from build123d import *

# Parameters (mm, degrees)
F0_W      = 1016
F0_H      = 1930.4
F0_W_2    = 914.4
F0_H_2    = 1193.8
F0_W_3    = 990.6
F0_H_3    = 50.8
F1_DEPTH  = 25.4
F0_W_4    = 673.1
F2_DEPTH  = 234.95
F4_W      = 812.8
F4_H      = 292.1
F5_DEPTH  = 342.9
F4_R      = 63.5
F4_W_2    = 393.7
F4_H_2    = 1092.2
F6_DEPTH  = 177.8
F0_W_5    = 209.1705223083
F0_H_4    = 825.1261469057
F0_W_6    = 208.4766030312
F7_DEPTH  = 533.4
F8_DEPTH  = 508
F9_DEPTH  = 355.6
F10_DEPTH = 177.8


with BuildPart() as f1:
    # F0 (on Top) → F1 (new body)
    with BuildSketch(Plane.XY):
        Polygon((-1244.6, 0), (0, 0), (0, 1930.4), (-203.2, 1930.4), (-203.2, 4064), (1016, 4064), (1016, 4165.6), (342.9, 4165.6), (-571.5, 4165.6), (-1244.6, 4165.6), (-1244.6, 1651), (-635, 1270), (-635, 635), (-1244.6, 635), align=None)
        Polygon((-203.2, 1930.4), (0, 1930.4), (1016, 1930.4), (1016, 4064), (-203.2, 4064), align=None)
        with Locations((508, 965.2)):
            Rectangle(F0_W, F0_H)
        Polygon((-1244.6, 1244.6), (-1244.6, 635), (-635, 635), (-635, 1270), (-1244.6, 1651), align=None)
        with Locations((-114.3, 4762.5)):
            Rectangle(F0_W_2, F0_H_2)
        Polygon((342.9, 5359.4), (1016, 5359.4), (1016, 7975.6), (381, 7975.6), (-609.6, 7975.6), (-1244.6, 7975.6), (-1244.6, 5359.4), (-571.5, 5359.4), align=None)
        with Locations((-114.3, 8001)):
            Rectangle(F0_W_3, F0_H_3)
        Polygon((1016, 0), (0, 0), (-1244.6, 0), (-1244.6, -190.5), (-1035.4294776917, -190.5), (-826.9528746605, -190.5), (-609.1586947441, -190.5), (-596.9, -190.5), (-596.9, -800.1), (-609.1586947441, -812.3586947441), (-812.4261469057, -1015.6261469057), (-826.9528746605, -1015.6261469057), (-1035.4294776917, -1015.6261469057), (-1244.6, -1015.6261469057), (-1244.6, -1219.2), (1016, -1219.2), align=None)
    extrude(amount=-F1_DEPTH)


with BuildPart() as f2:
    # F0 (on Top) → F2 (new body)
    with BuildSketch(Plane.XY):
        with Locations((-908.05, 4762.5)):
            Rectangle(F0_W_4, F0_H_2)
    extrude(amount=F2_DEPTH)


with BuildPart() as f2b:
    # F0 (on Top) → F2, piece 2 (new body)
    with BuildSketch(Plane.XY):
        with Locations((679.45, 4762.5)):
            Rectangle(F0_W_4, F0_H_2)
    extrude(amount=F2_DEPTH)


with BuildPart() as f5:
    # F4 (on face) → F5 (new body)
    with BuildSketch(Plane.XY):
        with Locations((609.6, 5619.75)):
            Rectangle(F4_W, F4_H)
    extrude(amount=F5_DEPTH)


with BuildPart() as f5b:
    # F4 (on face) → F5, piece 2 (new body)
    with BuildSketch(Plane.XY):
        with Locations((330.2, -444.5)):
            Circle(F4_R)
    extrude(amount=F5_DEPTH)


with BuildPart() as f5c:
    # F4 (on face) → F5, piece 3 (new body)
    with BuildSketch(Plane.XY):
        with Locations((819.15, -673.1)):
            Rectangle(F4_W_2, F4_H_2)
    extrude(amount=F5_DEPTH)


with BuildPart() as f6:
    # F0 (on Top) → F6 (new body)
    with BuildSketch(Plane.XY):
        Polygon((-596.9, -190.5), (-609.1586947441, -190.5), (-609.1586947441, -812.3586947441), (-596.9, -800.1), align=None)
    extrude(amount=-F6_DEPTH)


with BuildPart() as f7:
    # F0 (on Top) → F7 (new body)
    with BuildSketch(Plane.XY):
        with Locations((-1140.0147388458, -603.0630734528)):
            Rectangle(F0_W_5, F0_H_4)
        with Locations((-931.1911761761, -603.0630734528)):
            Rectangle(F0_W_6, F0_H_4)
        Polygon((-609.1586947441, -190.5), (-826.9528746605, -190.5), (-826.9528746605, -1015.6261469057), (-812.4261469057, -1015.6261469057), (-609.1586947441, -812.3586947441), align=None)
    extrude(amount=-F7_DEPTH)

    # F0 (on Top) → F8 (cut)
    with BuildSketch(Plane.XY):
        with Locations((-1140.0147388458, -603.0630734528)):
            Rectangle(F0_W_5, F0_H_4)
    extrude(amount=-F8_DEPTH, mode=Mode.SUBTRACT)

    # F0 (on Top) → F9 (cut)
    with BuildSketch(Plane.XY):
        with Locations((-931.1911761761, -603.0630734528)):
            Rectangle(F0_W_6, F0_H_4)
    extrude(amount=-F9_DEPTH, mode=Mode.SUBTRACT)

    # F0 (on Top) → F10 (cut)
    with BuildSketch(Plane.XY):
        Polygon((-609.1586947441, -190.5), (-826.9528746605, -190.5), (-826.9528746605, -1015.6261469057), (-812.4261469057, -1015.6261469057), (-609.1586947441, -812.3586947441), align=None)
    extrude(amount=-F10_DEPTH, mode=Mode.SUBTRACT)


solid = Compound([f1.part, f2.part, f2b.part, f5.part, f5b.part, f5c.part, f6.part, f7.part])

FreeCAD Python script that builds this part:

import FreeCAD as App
import Part
import Sketcher

V = App.Vector
Q = App.Units.Quantity

doc = App.newDocument("Part")
body = doc.addObject("PartDesign::Body", "Body")

# Sketch on XY plane
sketch1 = body.newObject("Sketcher::SketchObject", "Sketch")
sketch1.AttachmentSupport = (doc.getObject("XY_Plane"), [""])
sketch1.MapMode = "FlatFace"
sketch1.addGeometry([
    Part.LineSegment(V(1016, 4166, 0), V(343, 4166, 0)),  # 0
    Part.LineSegment(V(343, 4166, 0), V(343, 5359, 0)),  # 1
    Part.LineSegment(V(343, 5359, 0), V(1016, 5359, 0)),  # 2
    Part.LineSegment(V(1016, 5359, 0), V(1016, 7976, 0)),  # 3
    Part.LineSegment(V(1016, 7976, 0), V(381, 7976, 0)),  # 4
    Part.LineSegment(V(381, 7976, 0), V(381, 8026, 0)),  # 5
    Part.LineSegment(V(381, 8026, 0), V(-610, 8026, 0)),  # 6
    Part.LineSegment(V(-610, 8026, 0), V(-610, 7976, 0)),  # 7
    Part.LineSegment(V(-610, 7976, 0), V(-1245, 7976, 0)),  # 8
    Part.LineSegment(V(-1245, 7976, 0), V(-1245, 5359, 0)),  # 9
    Part.LineSegment(V(-1245, 5359, 0), V(-572, 5359, 0)),  # 10
    Part.LineSegment(V(-572, 5359, 0), V(-572, 4166, 0)),  # 11
    Part.LineSegment(V(-572, 4166, 0), V(-1245, 4166, 0)),  # 12
    Part.LineSegment(V(-1245, 4166, 0), V(-1245, -190, 0)),  # 13
    Part.LineSegment(V(-1245, -190, 0), V(-597, -190, 0)),  # 14
    Part.LineSegment(V(-597, -190, 0), V(-597, -800, 0)),  # 15
    Part.LineSegment(V(-597, -800, 0), V(-812, -1016, 0)),  # 16
    Part.LineSegment(V(-812, -1016, 0), V(-1245, -1016, 0)),  # 17
    Part.LineSegment(V(-1245, -1016, 0), V(-1245, -1219, 0)),  # 18
    Part.LineSegment(V(-1245, -1219, 0), V(1016, -1219, 0)),  # 19
    Part.LineSegment(V(1016, -1219, 0), V(1016, 4166, 0)),  # 20
], False)
sketch1.addConstraint([
    Sketcher.Constraint("Coincident", 0, 2, 1, 1),
    Sketcher.Constraint("Coincident", 1, 2, 2, 1),
    Sketcher.Constraint("Coincident", 2, 2, 3, 1),
    Sketcher.Constraint("Coincident", 3, 2, 4, 1),
    Sketcher.Constraint("Coincident", 4, 2, 5, 1),
    Sketcher.Constraint("Coincident", 5, 2, 6, 1),
    Sketcher.Constraint("Coincident", 6, 2, 7, 1),
    Sketcher.Constraint("Coincident", 7, 2, 8, 1),
    Sketcher.Constraint("Coincident", 8, 2, 9, 1),
    Sketcher.Constraint("Coincident", 9, 2, 10, 1),
    Sketcher.Constraint("Coincident", 10, 2, 11, 1),
    Sketcher.Constraint("Coincident", 11, 2, 12, 1),
    Sketcher.Constraint("Coincident", 12, 2, 13, 1),
    Sketcher.Constraint("Coincident", 13, 2, 14, 1),
    Sketcher.Constraint("Coincident", 14, 2, 15, 1),
    Sketcher.Constraint("Coincident", 15, 2, 16, 1),
    Sketcher.Constraint("Coincident", 16, 2, 17, 1),
    Sketcher.Constraint("Coincident", 17, 2, 18, 1),
    Sketcher.Constraint("Coincident", 18, 2, 19, 1),
    Sketcher.Constraint("Coincident", 19, 2, 20, 1),
    Sketcher.Constraint("Coincident", 20, 2, 0, 1),
    Sketcher.Constraint("Horizontal", 0),
    Sketcher.Constraint("Vertical", 1),
    Sketcher.Constraint("Horizontal", 2),
    Sketcher.Constraint("Vertical", 3),
    Sketcher.Constraint("Horizontal", 4),
    Sketcher.Constraint("Vertical", 5),
    Sketcher.Constraint("Horizontal", 6),
    Sketcher.Constraint("Vertical", 7),
    Sketcher.Constraint("Horizontal", 8),
    Sketcher.Constraint("Vertical", 9),
    Sketcher.Constraint("Horizontal", 10),
    Sketcher.Constraint("Vertical", 11),
    Sketcher.Constraint("Horizontal", 12),
    Sketcher.Constraint("Vertical", 13),
    Sketcher.Constraint("Horizontal", 14),
    Sketcher.Constraint("Vertical", 15),
    Sketcher.Constraint("Horizontal", 17),
    Sketcher.Constraint("Vertical", 18),
    Sketcher.Constraint("Horizontal", 19),
    Sketcher.Constraint("Vertical", 20),
    Sketcher.Constraint("Horizontal", 4, 2, 7, 2),
    Sketcher.Constraint("Horizontal", 2, 2, 9, 2),
    Sketcher.Constraint("Horizontal", 0, 2, 11, 2),
    Sketcher.Constraint("Vertical", 9, 2, 12, 2),
    Sketcher.Constraint("Vertical", 13, 2, 17, 2),
    Sketcher.Constraint("Vertical", 3, 2, 19, 2),
    Sketcher.Constraint("Equal", 4, 8),
    Sketcher.Constraint("Equal", 2, 10),
    Sketcher.Constraint("DistanceX", 4, 2, 4, 1, Q("25 in")),
    Sketcher.Constraint("DistanceX", 6, 2, 6, 1, Q("39 in")),
    Sketcher.Constraint("DistanceY", 1, 1, 1, 2, Q("47 in")),
    Sketcher.Constraint("DistanceY", 3, 1, 3, 2, Q("103 in")),
    Sketcher.Constraint("DistanceY", 5, 1, 5, 2, Q("2 in")),
    Sketcher.Constraint("DistanceY", 15, 2, 15, 1, Q("24 in")),
    Sketcher.Constraint("DistanceY", 20, 1, 20, 2, Q("212 in")),
    Sketcher.Constraint("Distance", 16, Q("12 in")),
    Sketcher.Constraint("DistanceX", 0, 2, 0, 1, Q("26.5 in")),
    Sketcher.Constraint("DistanceX", 14, 1, 14, 2, Q("25.5 in")),
    Sketcher.Constraint("DistanceY", 13, 2, 13, 1, Q("171.5 in")),
    Sketcher.Constraint("DistanceY", -1, 1, 0, 2, Q("164 in")),
    Sketcher.Constraint("DistanceX", -1, 1, 2, 2, Q("40 in")),
    Sketcher.Constraint("Angle", 16, Q("-135 deg")),
])
pad1 = body.newObject("PartDesign::Pad", "Pad")
pad1.Profile = sketch1
pad1.Length = Q("1 in")
pad1.Reversed = True
body2 = doc.addObject("PartDesign::Body", "Body001")

# Sketch on XY plane
sketch2 = body2.newObject("Sketcher::SketchObject", "Sketch001")
sketch2.AttachmentSupport = (doc.getObject("XY_Plane001"), [""])
sketch2.MapMode = "FlatFace"
sketch2.addGeometry([
    Part.LineSegment(V(-1245, 5359, 0), V(-1245, 4166, 0)),
    Part.LineSegment(V(-1245, 4166, 0), V(-572, 4166, 0)),
    Part.LineSegment(V(-572, 4166, 0), V(-572, 5359, 0)),
    Part.LineSegment(V(-572, 5359, 0), V(-1245, 5359, 0)),
], False)
sketch2.addConstraint([
    Sketcher.Constraint("Coincident", 0, 2, 1, 1),
    Sketcher.Constraint("Coincident", 1, 2, 2, 1),
    Sketcher.Constraint("Coincident", 2, 2, 3, 1),
    Sketcher.Constraint("Coincident", 3, 2, 0, 1),
    Sketcher.Constraint("Vertical", 0),
    Sketcher.Constraint("Horizontal", 1),
    Sketcher.Constraint("Vertical", 2),
    Sketcher.Constraint("Horizontal", 3),
    Sketcher.Constraint("DistanceY", 0, 2, 0, 1, Q("47 in")),
    Sketcher.Constraint("DistanceX", 1, 1, 1, 2, Q("26.5 in")),
    Sketcher.Constraint("DistanceX", 0, 2, -1, 1, Q("49 in")),
    Sketcher.Constraint("DistanceY", -1, 1, 0, 2, Q("164 in")),
])
pad2 = body2.newObject("PartDesign::Pad", "Pad001")
pad2.Profile = sketch2
pad2.Length = Q("9.25 in")
body3 = doc.addObject("PartDesign::Body", "Body002")

# Sketch on XY plane
sketch3 = body3.newObject("Sketcher::SketchObject", "Sketch002")
sketch3.AttachmentSupport = (doc.getObject("XY_Plane002"), [""])
sketch3.MapMode = "FlatFace"
sketch3.addGeometry([
    Part.LineSegment(V(343, 5359, 0), V(343, 4166, 0)),
    Part.LineSegment(V(343, 4166, 0), V(1016, 4166, 0)),
    Part.LineSegment(V(1016, 4166, 0), V(1016, 5359, 0)),
    Part.LineSegment(V(1016, 5359, 0), V(343, 5359, 0)),
], False)
sketch3.addConstraint([
    Sketcher.Constraint("Coincident", 0, 2, 1, 1),
    Sketcher.Constraint("Coincident", 1, 2, 2, 1),
    Sketcher.Constraint("Coincident", 2, 2, 3, 1),
    Sketcher.Constraint("Coincident", 3, 2, 0, 1),
    Sketcher.Constraint("Vertical", 0),
    Sketcher.Constraint("Horizontal", 1),
    Sketcher.Constraint("Vertical", 2),
    Sketcher.Constraint("Horizontal", 3),
    Sketcher.Constraint("DistanceY", 0, 2, 0, 1, Q("47 in")),
    Sketcher.Constraint("DistanceX", 1, 1, 1, 2, Q("26.5 in")),
    Sketcher.Constraint("DistanceY", -1, 1, 0, 2, Q("164 in")),
    Sketcher.Constraint("DistanceX", -1, 1, 1, 2, Q("40 in")),
])
pad3 = body3.newObject("PartDesign::Pad", "Pad002")
pad3.Profile = sketch3
pad3.Length = Q("9.25 in")
body4 = doc.addObject("PartDesign::Body", "Body003")

# Sketch on XY plane
sketch4 = body4.newObject("Sketcher::SketchObject", "Sketch003")
sketch4.AttachmentSupport = (doc.getObject("XY_Plane003"), [""])
sketch4.MapMode = "FlatFace"
sketch4.addGeometry([
    Part.LineSegment(V(203, 5766, 0), V(203, 5474, 0)),
    Part.LineSegment(V(203, 5474, 0), V(1016, 5474, 0)),
    Part.LineSegment(V(1016, 5474, 0), V(1016, 5766, 0)),
    Part.LineSegment(V(1016, 5766, 0), V(203, 5766, 0)),
], False)
sketch4.addConstraint([
    Sketcher.Constraint("Coincident", 0, 2, 1, 1),
    Sketcher.Constraint("Coincident", 1, 2, 2, 1),
    Sketcher.Constraint("Coincident", 2, 2, 3, 1),
    Sketcher.Constraint("Coincident", 3, 2, 0, 1),
    Sketcher.Constraint("Vertical", 0),
    Sketcher.Constraint("Horizontal", 1),
    Sketcher.Constraint("Vertical", 2),
    Sketcher.Constraint("Horizontal", 3),
    Sketcher.Constraint("DistanceX", 1, 1, 1, 2, Q("32 in")),
    Sketcher.Constraint("DistanceY", 0, 2, 0, 1, Q("11.5 in")),
    Sketcher.Constraint("DistanceX", -1, 1, 0, 2, Q("8 in")),
    Sketcher.Constraint("DistanceY", -1, 1, 2, 2, Q("227 in")),
])
pad4 = body4.newObject("PartDesign::Pad", "Pad003")
pad4.Profile = sketch4
pad4.Length = Q("13.5 in")
body5 = doc.addObject("PartDesign::Body", "Body004")

# Sketch on XY plane
sketch5 = body5.newObject("Sketcher::SketchObject", "Sketch004")
sketch5.AttachmentSupport = (doc.getObject("XY_Plane004"), [""])
sketch5.MapMode = "FlatFace"
sketch5.addGeometry(Part.Circle(V(330, -444, 0), V(0, 0, 1), 64), False)
sketch5.addConstraint([
    Sketcher.Constraint("Diameter", 0, Q("5 in")),
    Sketcher.Constraint("DistanceX", -1, 1, 0, 3, Q("13 in")),
    Sketcher.Constraint("DistanceY", 0, 3, -1, 1, Q("17.5 in")),
])
pad5 = body5.newObject("PartDesign::Pad", "Pad004")
pad5.Profile = sketch5
pad5.Length = Q("13.5 in")
body6 = doc.addObject("PartDesign::Body", "Body005")

# Sketch on XY plane
sketch6 = body6.newObject("Sketcher::SketchObject", "Sketch005")
sketch6.AttachmentSupport = (doc.getObject("XY_Plane005"), [""])
sketch6.MapMode = "FlatFace"
sketch6.addGeometry([
    Part.LineSegment(V(622, -127, 0), V(622, -1219, 0)),
    Part.LineSegment(V(622, -1219, 0), V(1016, -1219, 0)),
    Part.LineSegment(V(1016, -1219, 0), V(1016, -127, 0)),
    Part.LineSegment(V(1016, -127, 0), V(622, -127, 0)),
], False)
sketch6.addConstraint([
    Sketcher.Constraint("Coincident", 0, 2, 1, 1),
    Sketcher.Constraint("Coincident", 1, 2, 2, 1),
    Sketcher.Constraint("Coincident", 2, 2, 3, 1),
    Sketcher.Constraint("Coincident", 3, 2, 0, 1),
    Sketcher.Constraint("Vertical", 0),
    Sketcher.Constraint("Horizontal", 1),
    Sketcher.Constraint("Vertical", 2),
    Sketcher.Constraint("Horizontal", 3),
    Sketcher.Constraint("DistanceY", 0, 2, 0, 1, Q("43 in")),
    Sketcher.Constraint("DistanceX", 1, 1, 1, 2, Q("15.5 in")),
    Sketcher.Constraint("DistanceY", 0, 2, -1, 1, Q("48 in")),
    Sketcher.Constraint("DistanceX", -1, 1, 1, 2, Q("40 in")),
])
pad6 = body6.newObject("PartDesign::Pad", "Pad005")
pad6.Profile = sketch6
pad6.Length = Q("13.5 in")
body7 = doc.addObject("PartDesign::Body", "Body006")

# Sketch on XY plane
sketch7 = body7.newObject("Sketcher::SketchObject", "Sketch006")
sketch7.AttachmentSupport = (doc.getObject("XY_Plane006"), [""])
sketch7.MapMode = "FlatFace"
sketch7.addGeometry([
    Part.LineSegment(V(-597, -190, 0), V(-609, -190, 0)),
    Part.LineSegment(V(-609, -190, 0), V(-609, -812, 0)),
    Part.LineSegment(V(-609, -812, 0), V(-597, -800, 0)),
    Part.LineSegment(V(-597, -800, 0), V(-597, -190, 0)),
], False)
sketch7.addConstraint([
    Sketcher.Constraint("Coincident", 0, 2, 1, 1),
    Sketcher.Constraint("Coincident", 1, 2, 2, 1),
    Sketcher.Constraint("Coincident", 2, 2, 3, 1),
    Sketcher.Constraint("Coincident", 3, 2, 0, 1),
    Sketcher.Constraint("Horizontal", 0),
    Sketcher.Constraint("Vertical", 1),
    Sketcher.Constraint("Vertical", 3),
    Sketcher.Constraint("DistanceY", 3, 1, 3, 2, Q("24 in")),
    Sketcher.Constraint("Angle", 2, Q("45 deg")),
    Sketcher.Constraint("DistanceY", 0, 2, -1, 1, Q("7.5 in")),
    Sketcher.Constraint("DistanceX", 2, 2, -1, 1, Q("23.5 in")),
    Sketcher.Constraint("DistanceX", 0, 2, 0, 1, Q("12.258695 mm")),
])
pad7 = body7.newObject("PartDesign::Pad", "Pad006")
pad7.Profile = sketch7
pad7.Length = Q("7 in")
pad7.Reversed = True
body8 = doc.addObject("PartDesign::Body", "Body007")

# Sketch on XY plane
sketch8 = body8.newObject("Sketcher::SketchObject", "Sketch007")
sketch8.AttachmentSupport = (doc.getObject("XY_Plane007"), [""])
sketch8.MapMode = "FlatFace"
sketch8.addGeometry([
    Part.LineSegment(V(-1245, -190, 0), V(-1245, -1016, 0)),  # 0
    Part.LineSegment(V(-1245, -1016, 0), V(-812, -1016, 0)),  # 1
    Part.LineSegment(V(-812, -1016, 0), V(-609, -812, 0)),  # 2
    Part.LineSegment(V(-609, -812, 0), V(-609, -190, 0)),  # 3
    Part.LineSegment(V(-609, -190, 0), V(-1245, -190, 0)),  # 4
], False)
sketch8.addConstraint([
    Sketcher.Constraint("Coincident", 0, 2, 1, 1),
    Sketcher.Constraint("Coincident", 1, 2, 2, 1),
    Sketcher.Constraint("Coincident", 2, 2, 3, 1),
    Sketcher.Constraint("Coincident", 3, 2, 4, 1),
    Sketcher.Constraint("Coincident", 4, 2, 0, 1),
    Sketcher.Constraint("Vertical", 0),
    Sketcher.Constraint("Horizontal", 1),
    Sketcher.Constraint("Vertical", 3),
    Sketcher.Constraint("Horizontal", 4),
    Sketcher.Constraint("DistanceX", 0, 2, -1, 1, Q("49 in")),
    Sketcher.Constraint("Angle", 2, Q("45 deg")),
    Sketcher.Constraint("DistanceY", 3, 2, -1, 1, Q("7.5 in")),
    Sketcher.Constraint("DistanceX", 1, 1, 1, 2, Q("432.173853 mm")),
    Sketcher.Constraint("DistanceX", 4, 2, 4, 1, Q("635.441305 mm")),
    Sketcher.Constraint("DistanceY", 0, 2, 0, 1, Q("825.126147 mm")),
])
pad8 = body8.newObject("PartDesign::Pad", "Pad007")
pad8.Profile = sketch8
pad8.Length = Q("21 in")
pad8.Reversed = True

# Sketch on XY plane
sketch9 = body8.newObject("Sketcher::SketchObject", "Sketch008")
sketch9.AttachmentSupport = (doc.getObject("XY_Plane007"), [""])
sketch9.MapMode = "FlatFace"
sketch9.addGeometry([
    Part.LineSegment(V(-1245, -190, 0), V(-1245, -1016, 0)),
    Part.LineSegment(V(-1245, -1016, 0), V(-1035, -1016, 0)),
    Part.LineSegment(V(-1035, -1016, 0), V(-1035, -190, 0)),
    Part.LineSegment(V(-1035, -190, 0), V(-1245, -190, 0)),
], False)
sketch9.addConstraint([
    Sketcher.Constraint("Coincident", 0, 2, 1, 1),
    Sketcher.Constraint("Coincident", 1, 2, 2, 1),
    Sketcher.Constraint("Coincident", 2, 2, 3, 1),
    Sketcher.Constraint("Coincident", 3, 2, 0, 1),
    Sketcher.Constraint("Vertical", 0),
    Sketcher.Constraint("Horizontal", 1),
    Sketcher.Constraint("Vertical", 2),
    Sketcher.Constraint("Horizontal", 3),
    Sketcher.Constraint("DistanceX", 0, 2, -1, 1, Q("49 in")),
    Sketcher.Constraint("DistanceY", 2, 2, -1, 1, Q("7.5 in")),
    Sketcher.Constraint("DistanceX", 1, 1, 1, 2, Q("209.170522 mm")),
    Sketcher.Constraint("DistanceY", 0, 2, 0, 1, Q("825.126147 mm")),
])
pocket1 = body8.newObject("PartDesign::Pocket", "Pocket")
pocket1.Profile = sketch9
pocket1.Length = Q("20 in")

# Sketch on XY plane
sketch10 = body8.newObject("Sketcher::SketchObject", "Sketch009")
sketch10.AttachmentSupport = (doc.getObject("XY_Plane007"), [""])
sketch10.MapMode = "FlatFace"
sketch10.addGeometry([
    Part.LineSegment(V(-1035, -190, 0), V(-1035, -1016, 0)),
    Part.LineSegment(V(-1035, -1016, 0), V(-827, -1016, 0)),
    Part.LineSegment(V(-827, -1016, 0), V(-827, -190, 0)),
    Part.LineSegment(V(-827, -190, 0), V(-1035, -190, 0)),
], False)
sketch10.addConstraint([
    Sketcher.Constraint("Coincident", 0, 2, 1, 1),
    Sketcher.Constraint("Coincident", 1, 2, 2, 1),
    Sketcher.Constraint("Coincident", 2, 2, 3, 1),
    Sketcher.Constraint("Coincident", 3, 2, 0, 1),
    Sketcher.Constraint("Vertical", 0),
    Sketcher.Constraint("Horizontal", 1),
    Sketcher.Constraint("Vertical", 2),
    Sketcher.Constraint("Horizontal", 3),
    Sketcher.Constraint("DistanceY", 2, 2, -1, 1, Q("7.5 in")),
    Sketcher.Constraint("DistanceX", 1, 1, 1, 2, Q("208.476603 mm")),
    Sketcher.Constraint("DistanceY", 0, 2, 0, 1, Q("825.126147 mm")),
    Sketcher.Constraint("DistanceX", 0, 2, -1, 1, Q("1035.429478 mm")),
])
pocket2 = body8.newObject("PartDesign::Pocket", "Pocket001")
pocket2.Profile = sketch10
pocket2.Length = Q("14 in")

# Sketch on XY plane
sketch11 = body8.newObject("Sketcher::SketchObject", "Sketch010")
sketch11.AttachmentSupport = (doc.getObject("XY_Plane007"), [""])
sketch11.MapMode = "FlatFace"
sketch11.addGeometry([
    Part.LineSegment(V(-609, -190, 0), V(-827, -190, 0)),  # 0
    Part.LineSegment(V(-827, -190, 0), V(-827, -1016, 0)),  # 1
    Part.LineSegment(V(-827, -1016, 0), V(-812, -1016, 0)),  # 2
    Part.LineSegment(V(-812, -1016, 0), V(-609, -812, 0)),  # 3
    Part.LineSegment(V(-609, -812, 0), V(-609, -190, 0)),  # 4
], False)
sketch11.addConstraint([
    Sketcher.Constraint("Coincident", 0, 2, 1, 1),
    Sketcher.Constraint("Coincident", 1, 2, 2, 1),
    Sketcher.Constraint("Coincident", 2, 2, 3, 1),
    Sketcher.Constraint("Coincident", 3, 2, 4, 1),
    Sketcher.Constraint("Coincident", 4, 2, 0, 1),
    Sketcher.Constraint("Horizontal", 0),
    Sketcher.Constraint("Vertical", 1),
    Sketcher.Constraint("Horizontal", 2),
    Sketcher.Constraint("Vertical", 4),
    Sketcher.Constraint("Angle", 3, Q("45 deg")),
    Sketcher.Constraint("DistanceY", 0, 2, -1, 1, Q("7.5 in")),
    Sketcher.Constraint("DistanceX", 0, 2, 0, 1, Q("217.79418 mm")),
    Sketcher.Constraint("DistanceX", 2, 1, 2, 2, Q("14.526728 mm")),
    Sketcher.Constraint("DistanceY", 1, 2, 1, 1, Q("825.126147 mm")),
    Sketcher.Constraint("DistanceX", 0, 2, -1, 1, Q("826.952875 mm")),
])
pocket3 = body8.newObject("PartDesign::Pocket", "Pocket002")
pocket3.Profile = sketch11
pocket3.Length = Q("7 in")

doc.recompute()
